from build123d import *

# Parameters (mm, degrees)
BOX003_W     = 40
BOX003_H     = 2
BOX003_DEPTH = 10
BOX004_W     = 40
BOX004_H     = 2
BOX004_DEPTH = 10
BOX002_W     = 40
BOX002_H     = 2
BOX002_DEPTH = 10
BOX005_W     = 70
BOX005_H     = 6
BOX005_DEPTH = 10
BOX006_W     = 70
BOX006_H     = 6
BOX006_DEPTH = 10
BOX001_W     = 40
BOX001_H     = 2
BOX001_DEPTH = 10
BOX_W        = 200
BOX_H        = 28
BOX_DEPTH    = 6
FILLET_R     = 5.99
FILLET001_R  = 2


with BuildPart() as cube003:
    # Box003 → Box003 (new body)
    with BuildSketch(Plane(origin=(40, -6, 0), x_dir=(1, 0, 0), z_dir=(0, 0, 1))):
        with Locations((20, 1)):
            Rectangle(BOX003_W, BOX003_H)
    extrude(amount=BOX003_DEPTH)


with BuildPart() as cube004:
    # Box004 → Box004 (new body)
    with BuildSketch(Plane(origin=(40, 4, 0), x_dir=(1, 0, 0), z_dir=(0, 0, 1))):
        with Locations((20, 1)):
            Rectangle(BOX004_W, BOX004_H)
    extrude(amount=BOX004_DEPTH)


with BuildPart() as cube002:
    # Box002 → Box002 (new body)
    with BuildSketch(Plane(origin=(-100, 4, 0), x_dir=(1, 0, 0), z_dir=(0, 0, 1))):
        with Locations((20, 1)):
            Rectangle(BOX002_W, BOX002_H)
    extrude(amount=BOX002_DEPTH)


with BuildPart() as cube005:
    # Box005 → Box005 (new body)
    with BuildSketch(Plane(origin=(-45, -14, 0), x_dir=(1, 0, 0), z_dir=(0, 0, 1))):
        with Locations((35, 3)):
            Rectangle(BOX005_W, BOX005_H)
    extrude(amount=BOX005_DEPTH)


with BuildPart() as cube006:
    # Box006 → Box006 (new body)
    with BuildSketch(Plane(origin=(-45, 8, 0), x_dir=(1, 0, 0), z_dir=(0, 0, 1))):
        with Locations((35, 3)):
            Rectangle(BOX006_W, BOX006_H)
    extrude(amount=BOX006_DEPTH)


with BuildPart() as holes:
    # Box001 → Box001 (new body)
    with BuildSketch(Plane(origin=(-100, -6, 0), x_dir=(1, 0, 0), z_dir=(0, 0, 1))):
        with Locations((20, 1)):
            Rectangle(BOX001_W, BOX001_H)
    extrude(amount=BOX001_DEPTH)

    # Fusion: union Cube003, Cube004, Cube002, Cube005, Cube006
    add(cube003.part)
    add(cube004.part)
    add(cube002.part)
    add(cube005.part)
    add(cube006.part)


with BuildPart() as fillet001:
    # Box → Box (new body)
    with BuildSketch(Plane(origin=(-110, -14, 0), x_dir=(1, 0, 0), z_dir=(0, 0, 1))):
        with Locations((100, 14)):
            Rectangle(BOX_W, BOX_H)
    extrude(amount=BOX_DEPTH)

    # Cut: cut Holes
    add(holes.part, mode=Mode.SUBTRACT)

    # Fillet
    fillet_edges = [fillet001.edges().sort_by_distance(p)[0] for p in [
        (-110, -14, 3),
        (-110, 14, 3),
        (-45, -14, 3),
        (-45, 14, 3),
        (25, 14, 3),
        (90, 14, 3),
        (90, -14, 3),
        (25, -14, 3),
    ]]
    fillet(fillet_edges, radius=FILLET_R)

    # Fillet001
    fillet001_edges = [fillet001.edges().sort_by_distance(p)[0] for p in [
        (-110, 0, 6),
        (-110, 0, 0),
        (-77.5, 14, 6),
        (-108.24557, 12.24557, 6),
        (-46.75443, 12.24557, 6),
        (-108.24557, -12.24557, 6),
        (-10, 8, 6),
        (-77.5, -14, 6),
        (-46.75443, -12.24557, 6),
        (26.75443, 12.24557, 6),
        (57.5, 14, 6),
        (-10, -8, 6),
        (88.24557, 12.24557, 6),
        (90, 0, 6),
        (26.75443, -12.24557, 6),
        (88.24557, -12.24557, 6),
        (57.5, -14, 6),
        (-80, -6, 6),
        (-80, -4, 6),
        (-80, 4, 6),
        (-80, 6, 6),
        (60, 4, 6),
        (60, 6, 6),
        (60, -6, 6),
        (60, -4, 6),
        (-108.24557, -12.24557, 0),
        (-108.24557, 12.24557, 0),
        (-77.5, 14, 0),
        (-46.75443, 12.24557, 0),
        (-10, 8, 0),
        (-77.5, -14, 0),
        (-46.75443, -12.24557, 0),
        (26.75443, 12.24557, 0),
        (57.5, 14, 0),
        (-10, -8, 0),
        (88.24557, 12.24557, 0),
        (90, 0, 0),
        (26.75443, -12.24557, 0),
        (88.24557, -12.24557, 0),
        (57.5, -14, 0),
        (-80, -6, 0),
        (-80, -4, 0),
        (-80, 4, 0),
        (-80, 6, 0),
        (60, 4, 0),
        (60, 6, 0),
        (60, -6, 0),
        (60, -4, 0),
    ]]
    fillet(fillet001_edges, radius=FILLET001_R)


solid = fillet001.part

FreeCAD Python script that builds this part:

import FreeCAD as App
import Part
import Sketcher
Q = App.Units.Quantity


def edges_at(feature, points):
    """Names of the edges that pass closest to the given points."""
    edges = feature.Shape.Edges
    near = lambda p: min(range(len(edges)), key=lambda i: edges[i].distToShape(Part.Vertex(*p))[0])
    return sorted({f"Edge{near(p) + 1}" for p in points})


def add_polygon(sketch, points):
    """Adds a closed chain of lines whose ends are joined by coincident constraints."""
    first, n = sketch.GeometryCount, len(points)
    for a, b in zip(points, points[1:] + points[:1]):
        sketch.addGeometry(Part.LineSegment(App.Vector(*a, 0), App.Vector(*b, 0)), False)
    for i in range(n):
        sketch.addConstraint(Sketcher.Constraint("Coincident", first + i, 2, first + (i + 1) % n, 1))

doc = App.newDocument("Part")
body = doc.addObject("PartDesign::Body", "Body")

# Sketch on XY plane
sketch1 = body.newObject("Sketcher::SketchObject", "Sketch")
sketch1.AttachmentSupport = (doc.getObject("XY_Plane"), [""])
sketch1.MapMode = "FlatFace"
add_polygon(sketch1, [(40, -4), (40, -6), (80, -6), (80, -4)])  # lines 0-3
sketch1.addConstraint(Sketcher.Constraint("Vertical", 0))
sketch1.addConstraint(Sketcher.Constraint("Horizontal", 1))
sketch1.addConstraint(Sketcher.Constraint("Vertical", 2))
sketch1.addConstraint(Sketcher.Constraint("Horizontal", 3))
sketch1.addConstraint(Sketcher.Constraint("DistanceX", 1, 1, 1, 2, Q("40 mm")))
sketch1.addConstraint(Sketcher.Constraint("DistanceY", 0, 2, 0, 1, Q("2 mm")))
sketch1.addConstraint(Sketcher.Constraint("DistanceX", -1, 1, 0, 2, Q("40 mm")))
sketch1.addConstraint(Sketcher.Constraint("DistanceY", 0, 2, -1, 1, Q("6 mm")))
pad1 = body.newObject("PartDesign::Pad", "Pad")
pad1.Profile = sketch1
pad1.Length = 10
body2 = doc.addObject("PartDesign::Body", "Body001")

# Sketch on XY plane
sketch2 = body2.newObject("Sketcher::SketchObject", "Sketch001")
sketch2.AttachmentSupport = (doc.getObject("XY_Plane001"), [""])
sketch2.MapMode = "FlatFace"
add_polygon(sketch2, [(40, 6), (40, 4), (80, 4), (80, 6)])  # lines 0-3
sketch2.addConstraint(Sketcher.Constraint("Vertical", 0))
sketch2.addConstraint(Sketcher.Constraint("Horizontal", 1))
sketch2.addConstraint(Sketcher.Constraint("Vertical", 2))
sketch2.addConstraint(Sketcher.Constraint("Horizontal", 3))
sketch2.addConstraint(Sketcher.Constraint("DistanceX", 1, 1, 1, 2, Q("40 mm")))
sketch2.addConstraint(Sketcher.Constraint("DistanceY", 0, 2, 0, 1, Q("2 mm")))
sketch2.addConstraint(Sketcher.Constraint("DistanceX", -1, 1, 0, 2, Q("40 mm")))
sketch2.addConstraint(Sketcher.Constraint("DistanceY", -1, 1, 0, 2, Q("4 mm")))
pad2 = body2.newObject("PartDesign::Pad", "Pad001")
pad2.Profile = sketch2
pad2.Length = 10
body3 = doc.addObject("PartDesign::Body", "Body002")

# Sketch on XY plane
sketch3 = body3.newObject("Sketcher::SketchObject", "Sketch002")
sketch3.AttachmentSupport = (doc.getObject("XY_Plane002"), [""])
sketch3.MapMode = "FlatFace"
add_polygon(sketch3, [(-100, 6), (-100, 4), (-60, 4), (-60, 6)])  # lines 0-3
sketch3.addConstraint(Sketcher.Constraint("Vertical", 0))
sketch3.addConstraint(Sketcher.Constraint("Horizontal", 1))
sketch3.addConstraint(Sketcher.Constraint("Vertical", 2))
sketch3.addConstraint(Sketcher.Constraint("Horizontal", 3))
sketch3.addConstraint(Sketcher.Constraint("DistanceX", 1, 1, 1, 2, Q("40 mm")))
sketch3.addConstraint(Sketcher.Constraint("DistanceY", 0, 2, 0, 1, Q("2 mm")))
sketch3.addConstraint(Sketcher.Constraint("DistanceX", 0, 2, -1, 1, Q("100 mm")))
sketch3.addConstraint(Sketcher.Constraint("DistanceY", -1, 1, 0, 2, Q("4 mm")))
pad3 = body3.newObject("PartDesign::Pad", "Pad002")
pad3.Profile = sketch3
pad3.Length = 10
body4 = doc.addObject("PartDesign::Body", "Body003")

# Sketch on XY plane
sketch4 = body4.newObject("Sketcher::SketchObject", "Sketch003")
sketch4.AttachmentSupport = (doc.getObject("XY_Plane003"), [""])
sketch4.MapMode = "FlatFace"
add_polygon(sketch4, [(-45, -8), (-45, -14), (25, -14), (25, -8)])  # lines 0-3
sketch4.addConstraint(Sketcher.Constraint("Vertical", 0))
sketch4.addConstraint(Sketcher.Constraint("Horizontal", 1))
sketch4.addConstraint(Sketcher.Constraint("Vertical", 2))
sketch4.addConstraint(Sketcher.Constraint("Horizontal", 3))
sketch4.addConstraint(Sketcher.Constraint("DistanceX", 1, 1, 1, 2, Q("70 mm")))
sketch4.addConstraint(Sketcher.Constraint("DistanceY", 0, 2, 0, 1, Q("6 mm")))
sketch4.addConstraint(Sketcher.Constraint("DistanceX", 0, 2, -1, 1, Q("45 mm")))
sketch4.addConstraint(Sketcher.Constraint("DistanceY", 0, 2, -1, 1, Q("14 mm")))
pad4 = body4.newObject("PartDesign::Pad", "Pad003")
pad4.Profile = sketch4
pad4.Length = 10
body5 = doc.addObject("PartDesign::Body", "Body004")

# Sketch on XY plane
sketch5 = body5.newObject("Sketcher::SketchObject", "Sketch004")
sketch5.AttachmentSupport = (doc.getObject("XY_Plane004"), [""])
sketch5.MapMode = "FlatFace"
add_polygon(sketch5, [(-45, 14), (-45, 8), (25, 8), (25, 14)])  # lines 0-3
sketch5.addConstraint(Sketcher.Constraint("Vertical", 0))
sketch5.addConstraint(Sketcher.Constraint("Horizontal", 1))
sketch5.addConstraint(Sketcher.Constraint("Vertical", 2))
sketch5.addConstraint(Sketcher.Constraint("Horizontal", 3))
sketch5.addConstraint(Sketcher.Constraint("DistanceX", 1, 1, 1, 2, Q("70 mm")))
sketch5.addConstraint(Sketcher.Constraint("DistanceY", 0, 2, 0, 1, Q("6 mm")))
sketch5.addConstraint(Sketcher.Constraint("DistanceX", 0, 2, -1, 1, Q("45 mm")))
sketch5.addConstraint(Sketcher.Constraint("DistanceY", -1, 1, 0, 2, Q("8 mm")))
pad5 = body5.newObject("PartDesign::Pad", "Pad004")
pad5.Profile = sketch5
pad5.Length = 10
body6 = doc.addObject("PartDesign::Body", "Body005")
body6.AllowCompound = True

# Sketch on XY plane
sketch6 = body6.newObject("Sketcher::SketchObject", "Sketch005")
sketch6.AttachmentSupport = (doc.getObject("XY_Plane005"), [""])
sketch6.MapMode = "FlatFace"
add_polygon(sketch6, [(-100, -4), (-100, -6), (-60, -6), (-60, -4)])  # lines 0-3
sketch6.addConstraint(Sketcher.Constraint("Vertical", 0))
sketch6.addConstraint(Sketcher.Constraint("Horizontal", 1))
sketch6.addConstraint(Sketcher.Constraint("Vertical", 2))
sketch6.addConstraint(Sketcher.Constraint("Horizontal", 3))
sketch6.addConstraint(Sketcher.Constraint("DistanceX", 1, 1, 1, 2, Q("40 mm")))
sketch6.addConstraint(Sketcher.Constraint("DistanceY", 0, 2, 0, 1, Q("2 mm")))
sketch6.addConstraint(Sketcher.Constraint("DistanceX", 0, 2, -1, 1, Q("100 mm")))
sketch6.addConstraint(Sketcher.Constraint("DistanceY", 0, 2, -1, 1, Q("6 mm")))
pad6 = body6.newObject("PartDesign::Pad", "Pad005")
pad6.Profile = sketch6
pad6.Length = 10
doc.recompute()

boolean = body6.newObject("PartDesign::Boolean", "Boolean")
boolean.Type = "Fuse"
boolean.addObjects([body])
doc.recompute()

boolean2 = body6.newObject("PartDesign::Boolean", "Boolean001")
boolean2.Type = "Fuse"
boolean2.addObjects([body2])
doc.recompute()

boolean3 = body6.newObject("PartDesign::Boolean", "Boolean002")
boolean3.Type = "Fuse"
boolean3.addObjects([body3])
doc.recompute()

boolean4 = body6.newObject("PartDesign::Boolean", "Boolean003")
boolean4.Type = "Fuse"
boolean4.addObjects([body4])
doc.recompute()

boolean5 = body6.newObject("PartDesign::Boolean", "Boolean004")
boolean5.Type = "Fuse"
boolean5.addObjects([body5])
body7 = doc.addObject("PartDesign::Body", "Body006")

# Sketch on XY plane
sketch7 = body7.newObject("Sketcher::SketchObject", "Sketch006")
sketch7.AttachmentSupport = (doc.getObject("XY_Plane006"), [""])
sketch7.MapMode = "FlatFace"
add_polygon(sketch7, [(-110, 14), (-110, -14), (90, -14), (90, 14)])  # lines 0-3
sketch7.addConstraint(Sketcher.Constraint("Vertical", 0))
sketch7.addConstraint(Sketcher.Constraint("Horizontal", 1))
sketch7.addConstraint(Sketcher.Constraint("Vertical", 2))
sketch7.addConstraint(Sketcher.Constraint("Horizontal", 3))
sketch7.addConstraint(Sketcher.Constraint("DistanceX", 1, 1, 1, 2, Q("200 mm")))
sketch7.addConstraint(Sketcher.Constraint("DistanceY", 0, 2, 0, 1, Q("28 mm")))
sketch7.addConstraint(Sketcher.Constraint("DistanceX", 0, 2, -1, 1, Q("110 mm")))
sketch7.addConstraint(Sketcher.Constraint("DistanceY", 0, 2, -1, 1, Q("14 mm")))
pad7 = body7.newObject("PartDesign::Pad", "Pad006")
pad7.Profile = sketch7
pad7.Length = 6
doc.recompute()

boolean6 = body7.newObject("PartDesign::Boolean", "Boolean005")
boolean6.Type = "Cut"
boolean6.addObjects([body6])
doc.recompute()

fillet = body7.newObject("PartDesign::Fillet", "Fillet")
fillet.Base = (boolean6, edges_at(boolean6, [
    (-110, -14, 3),
    (-110, 14, 3),
    (-45, -14, 3),
    (-45, 14, 3),
    (25, 14, 3),
    (90, 14, 3),
    (90, -14, 3),
    (25, -14, 3),
]))
fillet.Radius = 5.99
doc.recompute()

fillet2 = body7.newObject("PartDesign::Fillet", "Fillet001")
fillet2.Base = (fillet, edges_at(fillet, [
    (-110, 0, 6),
    (-110, 0, 0),
    (-77.5, 14, 6),
    (-108.246, 12.246, 6),
    (-46.754, 12.246, 6),
    (-108.246, -12.246, 6),
    (-10, 8, 6),
    (-77.5, -14, 6),
    (-46.754, -12.246, 6),
    (26.754, 12.246, 6),
    (57.5, 14, 6),
    (-10, -8, 6),
    (88.246, 12.246, 6),
    (90, 0, 6),
    (26.754, -12.246, 6),
    (88.246, -12.246, 6),
    (57.5, -14, 6),
    (-80, -6, 6),
    (-80, -4, 6),
    (-80, 4, 6),
    (-80, 6, 6),
    (60, 4, 6),
    (60, 6, 6),
    (60, -6, 6),
    (60, -4, 6),
    (-108.246, -12.246, 0),
    (-108.246, 12.246, 0),
    (-77.5, 14, 0),
    (-46.754, 12.246, 0),
    (-10, 8, 0),
    (-77.5, -14, 0),
    (-46.754, -12.246, 0),
    (26.754, 12.246, 0),
    (57.5, 14, 0),
    (-10, -8, 0),
    (88.246, 12.246, 0),
    (90, 0, 0),
    (26.754, -12.246, 0),
    (88.246, -12.246, 0),
    (57.5, -14, 0),
    (-80, -6, 0),
    (-80, -4, 0),
    (-80, 4, 0),
    (-80, 6, 0),
    (60, 4, 0),
    (60, 6, 0),
    (60, -6, 0),
    (60, -4, 0),
]))
fillet2.Radius = 2

doc.recompute()
